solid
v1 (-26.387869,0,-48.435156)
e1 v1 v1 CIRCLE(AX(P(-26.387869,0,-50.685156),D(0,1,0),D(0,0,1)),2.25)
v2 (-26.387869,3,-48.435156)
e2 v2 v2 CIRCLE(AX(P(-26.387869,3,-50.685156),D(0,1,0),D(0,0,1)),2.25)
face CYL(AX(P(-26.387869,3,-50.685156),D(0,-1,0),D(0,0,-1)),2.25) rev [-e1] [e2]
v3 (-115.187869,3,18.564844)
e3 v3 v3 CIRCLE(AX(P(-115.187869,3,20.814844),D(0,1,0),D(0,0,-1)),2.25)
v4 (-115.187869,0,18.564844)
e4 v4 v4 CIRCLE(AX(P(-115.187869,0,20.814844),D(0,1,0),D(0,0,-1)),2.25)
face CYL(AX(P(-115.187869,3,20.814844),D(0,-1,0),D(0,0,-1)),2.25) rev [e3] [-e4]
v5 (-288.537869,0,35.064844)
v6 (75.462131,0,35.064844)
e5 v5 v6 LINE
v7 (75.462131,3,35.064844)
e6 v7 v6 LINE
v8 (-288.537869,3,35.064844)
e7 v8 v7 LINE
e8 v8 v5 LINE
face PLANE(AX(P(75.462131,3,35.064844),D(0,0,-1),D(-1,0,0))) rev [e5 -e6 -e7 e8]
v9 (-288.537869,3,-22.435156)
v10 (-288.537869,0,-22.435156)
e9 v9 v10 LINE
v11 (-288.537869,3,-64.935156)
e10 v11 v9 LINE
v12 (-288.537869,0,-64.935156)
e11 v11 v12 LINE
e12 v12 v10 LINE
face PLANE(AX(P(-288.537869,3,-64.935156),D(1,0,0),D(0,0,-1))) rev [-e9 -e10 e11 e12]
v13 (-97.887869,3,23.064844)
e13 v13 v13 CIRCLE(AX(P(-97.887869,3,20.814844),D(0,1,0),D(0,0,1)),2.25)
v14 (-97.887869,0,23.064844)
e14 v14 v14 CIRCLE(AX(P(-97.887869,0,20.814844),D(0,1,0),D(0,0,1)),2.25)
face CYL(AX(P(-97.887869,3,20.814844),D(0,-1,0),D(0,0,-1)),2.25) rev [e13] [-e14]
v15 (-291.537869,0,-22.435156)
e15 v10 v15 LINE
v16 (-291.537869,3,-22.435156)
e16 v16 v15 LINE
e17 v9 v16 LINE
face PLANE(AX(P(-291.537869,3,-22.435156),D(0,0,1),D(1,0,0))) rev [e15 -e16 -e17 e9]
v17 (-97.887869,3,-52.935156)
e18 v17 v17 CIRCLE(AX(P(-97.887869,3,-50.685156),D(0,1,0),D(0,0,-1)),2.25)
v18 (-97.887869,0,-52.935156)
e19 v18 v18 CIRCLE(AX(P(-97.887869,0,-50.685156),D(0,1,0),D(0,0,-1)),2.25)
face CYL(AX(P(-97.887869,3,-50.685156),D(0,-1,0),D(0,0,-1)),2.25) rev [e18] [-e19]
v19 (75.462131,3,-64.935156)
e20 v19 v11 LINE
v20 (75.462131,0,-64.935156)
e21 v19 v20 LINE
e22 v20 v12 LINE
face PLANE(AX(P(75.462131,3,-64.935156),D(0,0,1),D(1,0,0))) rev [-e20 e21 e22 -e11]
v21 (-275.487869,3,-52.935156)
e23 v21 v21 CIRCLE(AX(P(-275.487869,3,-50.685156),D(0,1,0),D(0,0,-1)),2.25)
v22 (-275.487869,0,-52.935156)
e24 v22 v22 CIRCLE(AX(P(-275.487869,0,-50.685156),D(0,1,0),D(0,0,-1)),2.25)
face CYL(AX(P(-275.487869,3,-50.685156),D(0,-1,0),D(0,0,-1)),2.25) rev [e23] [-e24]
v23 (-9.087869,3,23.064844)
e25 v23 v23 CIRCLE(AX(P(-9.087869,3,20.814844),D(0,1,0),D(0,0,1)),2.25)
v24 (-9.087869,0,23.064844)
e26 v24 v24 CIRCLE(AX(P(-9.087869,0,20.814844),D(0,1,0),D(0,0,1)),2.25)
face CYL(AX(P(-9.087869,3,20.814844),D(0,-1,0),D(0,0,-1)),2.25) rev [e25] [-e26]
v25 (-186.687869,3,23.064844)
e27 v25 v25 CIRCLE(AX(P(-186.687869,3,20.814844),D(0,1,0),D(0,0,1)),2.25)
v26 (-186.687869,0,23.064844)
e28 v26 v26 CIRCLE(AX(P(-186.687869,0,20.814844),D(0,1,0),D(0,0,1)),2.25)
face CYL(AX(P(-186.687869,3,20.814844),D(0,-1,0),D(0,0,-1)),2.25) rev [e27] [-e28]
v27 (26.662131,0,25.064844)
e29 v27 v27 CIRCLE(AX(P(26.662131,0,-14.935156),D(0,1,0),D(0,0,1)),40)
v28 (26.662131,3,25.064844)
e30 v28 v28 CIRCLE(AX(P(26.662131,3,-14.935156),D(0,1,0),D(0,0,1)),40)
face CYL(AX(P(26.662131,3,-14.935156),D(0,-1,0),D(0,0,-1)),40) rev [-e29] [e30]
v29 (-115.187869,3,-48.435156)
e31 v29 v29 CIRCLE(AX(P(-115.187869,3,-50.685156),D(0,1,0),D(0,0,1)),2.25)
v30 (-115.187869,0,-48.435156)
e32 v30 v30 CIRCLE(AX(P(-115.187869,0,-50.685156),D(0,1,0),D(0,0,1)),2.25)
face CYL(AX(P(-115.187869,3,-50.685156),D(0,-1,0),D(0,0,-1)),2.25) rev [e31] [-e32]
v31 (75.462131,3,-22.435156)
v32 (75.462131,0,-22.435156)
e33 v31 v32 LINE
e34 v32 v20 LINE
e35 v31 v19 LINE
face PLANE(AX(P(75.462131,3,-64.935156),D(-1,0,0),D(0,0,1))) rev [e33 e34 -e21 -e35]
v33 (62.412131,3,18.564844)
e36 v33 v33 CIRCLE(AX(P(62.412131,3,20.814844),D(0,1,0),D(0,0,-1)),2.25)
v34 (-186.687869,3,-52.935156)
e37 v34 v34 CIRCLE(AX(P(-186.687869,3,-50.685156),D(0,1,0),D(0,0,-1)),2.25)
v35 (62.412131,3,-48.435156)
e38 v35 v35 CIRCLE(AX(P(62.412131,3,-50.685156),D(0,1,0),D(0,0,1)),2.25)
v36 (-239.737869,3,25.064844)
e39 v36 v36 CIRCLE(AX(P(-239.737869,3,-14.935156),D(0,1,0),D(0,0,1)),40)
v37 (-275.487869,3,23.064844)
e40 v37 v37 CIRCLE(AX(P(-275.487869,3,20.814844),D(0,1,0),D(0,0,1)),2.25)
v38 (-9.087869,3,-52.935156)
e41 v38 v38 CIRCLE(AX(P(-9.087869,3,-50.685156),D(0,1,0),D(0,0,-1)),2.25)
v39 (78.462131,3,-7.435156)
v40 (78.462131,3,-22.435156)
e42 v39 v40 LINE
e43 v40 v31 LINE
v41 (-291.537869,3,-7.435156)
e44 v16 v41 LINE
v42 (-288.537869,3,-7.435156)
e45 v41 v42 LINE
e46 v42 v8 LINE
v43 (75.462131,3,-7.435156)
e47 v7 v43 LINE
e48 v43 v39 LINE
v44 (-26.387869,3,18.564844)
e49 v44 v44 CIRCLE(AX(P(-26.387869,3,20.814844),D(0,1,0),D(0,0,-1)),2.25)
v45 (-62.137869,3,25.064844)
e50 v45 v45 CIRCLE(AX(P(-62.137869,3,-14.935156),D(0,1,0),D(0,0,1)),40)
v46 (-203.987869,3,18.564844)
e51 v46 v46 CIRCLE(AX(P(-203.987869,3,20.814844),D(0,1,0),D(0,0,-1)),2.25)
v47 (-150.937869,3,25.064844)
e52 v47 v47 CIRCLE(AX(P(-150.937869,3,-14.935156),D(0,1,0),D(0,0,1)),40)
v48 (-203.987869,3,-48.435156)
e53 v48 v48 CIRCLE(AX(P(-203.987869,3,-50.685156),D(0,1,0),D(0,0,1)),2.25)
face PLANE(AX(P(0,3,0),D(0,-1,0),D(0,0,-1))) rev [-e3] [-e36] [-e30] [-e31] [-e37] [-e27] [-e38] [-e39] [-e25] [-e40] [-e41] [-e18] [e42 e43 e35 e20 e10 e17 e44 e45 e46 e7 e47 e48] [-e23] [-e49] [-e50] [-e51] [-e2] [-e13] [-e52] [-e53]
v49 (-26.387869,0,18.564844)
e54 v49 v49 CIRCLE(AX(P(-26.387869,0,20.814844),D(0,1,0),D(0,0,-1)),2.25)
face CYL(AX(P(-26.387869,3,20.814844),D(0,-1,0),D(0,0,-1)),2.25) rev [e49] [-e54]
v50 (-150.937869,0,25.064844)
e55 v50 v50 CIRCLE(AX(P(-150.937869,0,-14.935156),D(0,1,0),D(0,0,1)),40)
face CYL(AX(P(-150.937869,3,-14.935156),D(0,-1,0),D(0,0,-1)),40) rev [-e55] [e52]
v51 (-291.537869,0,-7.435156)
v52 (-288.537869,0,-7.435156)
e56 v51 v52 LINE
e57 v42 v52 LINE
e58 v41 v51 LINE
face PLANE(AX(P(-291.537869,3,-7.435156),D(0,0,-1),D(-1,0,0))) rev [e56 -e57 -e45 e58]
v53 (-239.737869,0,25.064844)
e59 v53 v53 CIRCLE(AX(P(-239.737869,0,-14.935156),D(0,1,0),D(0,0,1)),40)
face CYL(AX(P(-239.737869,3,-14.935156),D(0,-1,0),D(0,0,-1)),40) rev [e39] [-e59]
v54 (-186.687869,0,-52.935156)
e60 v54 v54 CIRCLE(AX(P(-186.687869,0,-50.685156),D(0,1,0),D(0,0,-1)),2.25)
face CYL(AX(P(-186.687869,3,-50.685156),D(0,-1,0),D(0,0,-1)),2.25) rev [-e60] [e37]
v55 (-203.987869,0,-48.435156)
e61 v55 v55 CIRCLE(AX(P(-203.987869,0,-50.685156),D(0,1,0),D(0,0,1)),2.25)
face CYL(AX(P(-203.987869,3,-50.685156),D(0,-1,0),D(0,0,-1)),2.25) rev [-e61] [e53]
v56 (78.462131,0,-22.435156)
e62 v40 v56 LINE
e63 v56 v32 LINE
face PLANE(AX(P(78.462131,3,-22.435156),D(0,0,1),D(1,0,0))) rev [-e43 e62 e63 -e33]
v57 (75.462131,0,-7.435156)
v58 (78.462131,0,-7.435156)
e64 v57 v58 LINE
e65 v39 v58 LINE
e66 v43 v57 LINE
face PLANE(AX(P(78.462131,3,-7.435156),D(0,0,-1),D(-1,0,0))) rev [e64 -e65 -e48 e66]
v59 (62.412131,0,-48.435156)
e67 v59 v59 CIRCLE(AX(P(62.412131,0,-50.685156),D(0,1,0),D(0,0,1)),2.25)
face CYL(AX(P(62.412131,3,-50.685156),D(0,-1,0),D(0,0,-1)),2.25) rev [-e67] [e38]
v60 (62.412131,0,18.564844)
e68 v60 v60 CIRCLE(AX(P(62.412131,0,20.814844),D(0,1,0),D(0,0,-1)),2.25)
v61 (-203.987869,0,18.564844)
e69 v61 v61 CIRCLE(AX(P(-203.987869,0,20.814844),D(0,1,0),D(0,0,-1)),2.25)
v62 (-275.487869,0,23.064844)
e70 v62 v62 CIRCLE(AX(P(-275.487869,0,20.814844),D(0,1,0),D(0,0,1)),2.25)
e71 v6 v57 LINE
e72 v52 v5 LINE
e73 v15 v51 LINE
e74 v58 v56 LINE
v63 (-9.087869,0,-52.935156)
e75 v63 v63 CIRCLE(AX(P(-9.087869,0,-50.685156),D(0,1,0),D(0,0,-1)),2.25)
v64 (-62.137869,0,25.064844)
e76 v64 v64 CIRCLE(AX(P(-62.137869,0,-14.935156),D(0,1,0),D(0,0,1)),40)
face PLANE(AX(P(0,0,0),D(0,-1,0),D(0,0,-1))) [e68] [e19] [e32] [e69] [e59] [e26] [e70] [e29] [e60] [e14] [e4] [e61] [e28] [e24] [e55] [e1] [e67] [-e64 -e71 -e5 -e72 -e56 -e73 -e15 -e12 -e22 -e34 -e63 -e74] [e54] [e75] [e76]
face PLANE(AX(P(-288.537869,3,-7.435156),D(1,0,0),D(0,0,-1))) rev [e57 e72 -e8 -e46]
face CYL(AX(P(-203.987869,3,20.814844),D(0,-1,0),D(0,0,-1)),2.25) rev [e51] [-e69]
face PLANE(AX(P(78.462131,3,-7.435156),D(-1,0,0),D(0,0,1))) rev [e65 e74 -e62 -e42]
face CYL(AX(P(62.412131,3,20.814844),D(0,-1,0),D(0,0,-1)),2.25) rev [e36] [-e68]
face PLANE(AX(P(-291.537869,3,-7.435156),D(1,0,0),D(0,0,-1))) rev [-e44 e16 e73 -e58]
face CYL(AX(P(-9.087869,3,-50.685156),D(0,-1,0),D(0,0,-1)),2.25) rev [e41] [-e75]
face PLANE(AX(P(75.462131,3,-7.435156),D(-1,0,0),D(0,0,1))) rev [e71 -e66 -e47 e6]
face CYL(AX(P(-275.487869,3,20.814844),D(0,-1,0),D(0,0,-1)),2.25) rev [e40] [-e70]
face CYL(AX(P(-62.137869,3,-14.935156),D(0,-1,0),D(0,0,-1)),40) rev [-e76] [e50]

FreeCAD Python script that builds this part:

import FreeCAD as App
import Part
import Sketcher
from FreeCAD import Vector


def add_polygon(sketch, points):
    """Adds a closed chain of lines whose ends are joined by coincident constraints."""
    first, n = sketch.GeometryCount, len(points)
    for a, b in zip(points, points[1:] + points[:1]):
        sketch.addGeometry(Part.LineSegment(App.Vector(*a, 0), App.Vector(*b, 0)), False)
    for i in range(n):
        sketch.addConstraint(Sketcher.Constraint("Coincident", first + i, 2, first + (i + 1) % n, 1))

doc = App.newDocument("Part")
params = doc.addObject("Spreadsheet::Sheet", "Params")
for row, (alias, value) in enumerate([
    ("sketch1_diameter", "80 mm"),
    ("sketch1_diameter2", "4.5 mm"),
    ("sketch1_width", "364 mm"),
    ("sketch1_width2", "3 mm"),
    ("sketch1_height", "15 mm"),
    ("pad1_length", "3 mm"),
], start=1):
    params.set(f"A{row}", alias)
    params.set(f"B{row}", "=" + value)
    params.setAlias(f"B{row}", alias)

body = doc.addObject("PartDesign::Body", "Body")

sketch1 = body.newObject("Sketcher::SketchObject", "Sketch")
sketch1.AttachmentSupport = (doc.getObject("XZ_Plane"), [""])
sketch1.MapMode = "FlatFace"
add_polygon(sketch1, [(75.462131, -64.935156), (-288.537869, -64.935156), (-288.537869, -22.435156), (-291.537869, -22.435156), (-291.537869, -7.435156), (-288.537869, -7.435156), (-288.537869, 35.064844), (75.462131, 35.064844), (75.462131, -7.435156), (78.462131, -7.435156), (78.462131, -22.435156), (75.462131, -22.435156)])
sketch1.addGeometry(Part.Circle(Vector(-275.487869, 20.814844, 0), Vector(0, 0, 1), 2.25), False)
sketch1.addGeometry(Part.Circle(Vector(-203.987869, 20.814844, 0), Vector(0, 0, 1), 2.25), False)
sketch1.addGeometry(Part.Circle(Vector(-186.687869, 20.814844, 0), Vector(0, 0, 1), 2.25), False)
sketch1.addGeometry(Part.Circle(Vector(-115.187869, 20.814844, 0), Vector(0, 0, 1), 2.25), False)
sketch1.addGeometry(Part.Circle(Vector(-97.887869, 20.814844, 0), Vector(0, 0, 1), 2.25), False)
sketch1.addGeometry(Part.Circle(Vector(-26.387869, 20.814844, 0), Vector(0, 0, 1), 2.25), False)
sketch1.addGeometry(Part.Circle(Vector(-9.087869, 20.814844, 0), Vector(0, 0, 1), 2.25), False)
sketch1.addGeometry(Part.Circle(Vector(62.412131, 20.814844, 0), Vector(0, 0, 1), 2.25), False)
sketch1.addGeometry(Part.Circle(Vector(-239.737869, -14.935156, 0), Vector(0, 0, 1), 40), False)
sketch1.addGeometry(Part.Circle(Vector(-150.937869, -14.935156, 0), Vector(0, 0, 1), 40), False)
sketch1.addGeometry(Part.Circle(Vector(-275.487869, -50.685156, 0), Vector(0, 0, 1), 2.25), False)
sketch1.addGeometry(Part.Circle(Vector(-203.987869, -50.685156, 0), Vector(0, 0, 1), 2.25), False)
sketch1.addGeometry(Part.Circle(Vector(-186.687869, -50.685156, 0), Vector(0, 0, 1), 2.25), False)
sketch1.addGeometry(Part.Circle(Vector(-115.187869, -50.685156, 0), Vector(0, 0, 1), 2.25), False)
sketch1.addGeometry(Part.Circle(Vector(-62.137869, -14.935156, 0), Vector(0, 0, 1), 40), False)
sketch1.addGeometry(Part.Circle(Vector(26.662131, -14.935156, 0), Vector(0, 0, 1), 40), False)
sketch1.addGeometry(Part.Circle(Vector(-97.887869, -50.685156, 0), Vector(0, 0, 1), 2.25), False)
sketch1.addGeometry(Part.Circle(Vector(-26.387869, -50.685156, 0), Vector(0, 0, 1), 2.25), False)
sketch1.addGeometry(Part.Circle(Vector(-9.087869, -50.685156, 0), Vector(0, 0, 1), 2.25), False)
sketch1.addGeometry(Part.Circle(Vector(62.412131, -50.685156, 0), Vector(0, 0, 1), 2.25), False)
sketch1.addConstraint(Sketcher.Constraint("Horizontal", 0))
sketch1.addConstraint(Sketcher.Constraint("Vertical", 1))
sketch1.addConstraint(Sketcher.Constraint("Horizontal", 2))
sketch1.addConstraint(Sketcher.Constraint("Vertical", 3))
sketch1.addConstraint(Sketcher.Constraint("Horizontal", 4))
sketch1.addConstraint(Sketcher.Constraint("Vertical", 5))
sketch1.addConstraint(Sketcher.Constraint("Horizontal", 6))
sketch1.addConstraint(Sketcher.Constraint("Vertical", 7))
sketch1.addConstraint(Sketcher.Constraint("Horizontal", 8))
sketch1.addConstraint(Sketcher.Constraint("Vertical", 9))
sketch1.addConstraint(Sketcher.Constraint("Horizontal", 10))
sketch1.addConstraint(Sketcher.Constraint("Vertical", 11))
sketch1.addConstraint(Sketcher.Constraint("Equal", 12, 13))
sketch1.addConstraint(Sketcher.Constraint("Equal", 13, 14))
sketch1.addConstraint(Sketcher.Constraint("Equal", 14, 15))
sketch1.addConstraint(Sketcher.Constraint("Equal", 15, 16))
sketch1.addConstraint(Sketcher.Constraint("Equal", 16, 17))
sketch1.addConstraint(Sketcher.Constraint("Equal", 17, 18))
sketch1.addConstraint(Sketcher.Constraint("Equal", 18, 19))
sketch1.addConstraint(Sketcher.Constraint("Equal", 20, 21))
sketch1.addConstraint(Sketcher.Constraint("Equal", 19, 22))
sketch1.addConstraint(Sketcher.Constraint("Equal", 22, 23))
sketch1.addConstraint(Sketcher.Constraint("Equal", 23, 24))
sketch1.addConstraint(Sketcher.Constraint("Equal", 24, 25))
sketch1.addConstraint(Sketcher.Constraint("Equal", 21, 26))
sketch1.addConstraint(Sketcher.Constraint("Equal", 26, 27))
sketch1.addConstraint(Sketcher.Constraint("Equal", 25, 28))
sketch1.addConstraint(Sketcher.Constraint("Equal", 28, 29))
sketch1.addConstraint(Sketcher.Constraint("Equal", 29, 30))
sketch1.addConstraint(Sketcher.Constraint("Equal", 30, 31))
sketch1.addConstraint(Sketcher.Constraint("Horizontal", 12, 3, 13, 3))
sketch1.addConstraint(Sketcher.Constraint("Horizontal", 13, 3, 14, 3))
sketch1.addConstraint(Sketcher.Constraint("Horizontal", 14, 3, 15, 3))
sketch1.addConstraint(Sketcher.Constraint("Horizontal", 15, 3, 16, 3))
sketch1.addConstraint(Sketcher.Constraint("Horizontal", 16, 3, 17, 3))
sketch1.addConstraint(Sketcher.Constraint("Horizontal", 17, 3, 18, 3))
sketch1.addConstraint(Sketcher.Constraint("Horizontal", 18, 3, 19, 3))
sketch1.addConstraint(Sketcher.Constraint("Horizontal", 20, 3, 21, 3))
sketch1.addConstraint(Sketcher.Constraint("Horizontal", 22, 3, 23, 3))
sketch1.addConstraint(Sketcher.Constraint("Horizontal", 23, 3, 24, 3))
sketch1.addConstraint(Sketcher.Constraint("Horizontal", 24, 3, 25, 3))
sketch1.addConstraint(Sketcher.Constraint("Horizontal", 21, 3, 26, 3))
sketch1.addConstraint(Sketcher.Constraint("Horizontal", 26, 3, 27, 3))
sketch1.addConstraint(Sketcher.Constraint("Horizontal", 25, 3, 28, 3))
sketch1.addConstraint(Sketcher.Constraint("Horizontal", 28, 3, 29, 3))
sketch1.addConstraint(Sketcher.Constraint("Horizontal", 29, 3, 30, 3))
sketch1.addConstraint(Sketcher.Constraint("Horizontal", 30, 3, 31, 3))
sketch1.addConstraint(Sketcher.Constraint("Horizontal", 4, 2, 7, 2))
sketch1.addConstraint(Sketcher.Constraint("Horizontal", 2, 2, 9, 2))
sketch1.addConstraint(Sketcher.Constraint("Vertical", 12, 3, 22, 3))
sketch1.addConstraint(Sketcher.Constraint("Vertical", 13, 3, 23, 3))
sketch1.addConstraint(Sketcher.Constraint("Vertical", 14, 3, 24, 3))
sketch1.addConstraint(Sketcher.Constraint("Vertical", 15, 3, 25, 3))
sketch1.addConstraint(Sketcher.Constraint("Vertical", 16, 3, 28, 3))
sketch1.addConstraint(Sketcher.Constraint("Vertical", 17, 3, 29, 3))
sketch1.addConstraint(Sketcher.Constraint("Vertical", 18, 3, 30, 3))
sketch1.addConstraint(Sketcher.Constraint("Vertical", 19, 3, 31, 3))
sketch1.addConstraint(Sketcher.Constraint("Vertical", 1, 2, 4, 2))
sketch1.addConstraint(Sketcher.Constraint("Vertical", 7, 2, 10, 2))
sketch1.addConstraint(Sketcher.Constraint("Equal", 4, 8))
sketch1.addConstraint(Sketcher.Constraint("Equal", 1, 5))
sketch1.addConstraint(Sketcher.Constraint("Diameter", 20, 80.0))
sketch1.addConstraint(Sketcher.Constraint("Diameter", 12, 4.5))
sketch1.addConstraint(Sketcher.Constraint("DistanceX", 0, 2, 0, 1, 364.0))
sketch1.addConstraint(Sketcher.Constraint("DistanceX", 2, 2, 2, 1, 3.0))
sketch1.addConstraint(Sketcher.Constraint("DistanceY", 3, 1, 3, 2, 15.0))
sketch1.addConstraint(Sketcher.Constraint("DistanceY", 1, 1, 1, 2, 42.5))
sketch1.addConstraint(Sketcher.Constraint("DistanceY", 0, 2, 20, 3, 50.0))
sketch1.addConstraint(Sketcher.Constraint("DistanceX", 12, 3, 13, 3, 71.5))
sketch1.addConstraint(Sketcher.Constraint("DistanceX", 13, 3, 14, 3, 17.3))
sketch1.addConstraint(Sketcher.Constraint("DistanceX", 14, 3, 15, 3, 71.5))
sketch1.addConstraint(Sketcher.Constraint("DistanceX", 15, 3, 16, 3, 17.3))
sketch1.addConstraint(Sketcher.Constraint("DistanceX", 16, 3, 17, 3, 71.5))
sketch1.addConstraint(Sketcher.Constraint("DistanceX", 17, 3, 18, 3, 17.3))
sketch1.addConstraint(Sketcher.Constraint("DistanceX", 18, 3, 19, 3, 71.5))
sketch1.addConstraint(Sketcher.Constraint("DistanceX", 20, 3, 21, 3, 88.8))
sketch1.addConstraint(Sketcher.Constraint("DistanceY", 22, 3, 12, 3, 71.5))
sketch1.addConstraint(Sketcher.Constraint("DistanceX", 26, 3, 27, 3, 88.8))
sketch1.addConstraint(Sketcher.Constraint("DistanceX", 0, 2, 20, 3, 48.8))
sketch1.addConstraint(Sketcher.Constraint("DistanceX", 27, 3, 6, 2, 48.8))
sketch1.addConstraint(Sketcher.Constraint("DistanceX", 12, 3, 20, 3, 35.75))
sketch1.addConstraint(Sketcher.Constraint("DistanceY", 20, 3, 12, 3, 35.75))
sketch1.addConstraint(Sketcher.Constraint("DistanceX", 12, 3, -1, 1, 275.487869))
sketch1.addConstraint(Sketcher.Constraint("DistanceY", -1, 1, 12, 3, 20.814844))
sketch1.setExpression("Constraints[73]", "Params.sketch1_diameter")
sketch1.setExpression("Constraints[74]", "Params.sketch1_diameter2")
sketch1.setExpression("Constraints[75]", "Params.sketch1_width")
sketch1.setExpression("Constraints[76]", "Params.sketch1_width2")
sketch1.setExpression("Constraints[77]", "Params.sketch1_height")
pad1 = body.newObject("PartDesign::Pad", "Pad")
pad1.Profile = sketch1
pad1.setExpression("Length", "Params.pad1_length")
pad1.Reversed = True

doc.recompute()
